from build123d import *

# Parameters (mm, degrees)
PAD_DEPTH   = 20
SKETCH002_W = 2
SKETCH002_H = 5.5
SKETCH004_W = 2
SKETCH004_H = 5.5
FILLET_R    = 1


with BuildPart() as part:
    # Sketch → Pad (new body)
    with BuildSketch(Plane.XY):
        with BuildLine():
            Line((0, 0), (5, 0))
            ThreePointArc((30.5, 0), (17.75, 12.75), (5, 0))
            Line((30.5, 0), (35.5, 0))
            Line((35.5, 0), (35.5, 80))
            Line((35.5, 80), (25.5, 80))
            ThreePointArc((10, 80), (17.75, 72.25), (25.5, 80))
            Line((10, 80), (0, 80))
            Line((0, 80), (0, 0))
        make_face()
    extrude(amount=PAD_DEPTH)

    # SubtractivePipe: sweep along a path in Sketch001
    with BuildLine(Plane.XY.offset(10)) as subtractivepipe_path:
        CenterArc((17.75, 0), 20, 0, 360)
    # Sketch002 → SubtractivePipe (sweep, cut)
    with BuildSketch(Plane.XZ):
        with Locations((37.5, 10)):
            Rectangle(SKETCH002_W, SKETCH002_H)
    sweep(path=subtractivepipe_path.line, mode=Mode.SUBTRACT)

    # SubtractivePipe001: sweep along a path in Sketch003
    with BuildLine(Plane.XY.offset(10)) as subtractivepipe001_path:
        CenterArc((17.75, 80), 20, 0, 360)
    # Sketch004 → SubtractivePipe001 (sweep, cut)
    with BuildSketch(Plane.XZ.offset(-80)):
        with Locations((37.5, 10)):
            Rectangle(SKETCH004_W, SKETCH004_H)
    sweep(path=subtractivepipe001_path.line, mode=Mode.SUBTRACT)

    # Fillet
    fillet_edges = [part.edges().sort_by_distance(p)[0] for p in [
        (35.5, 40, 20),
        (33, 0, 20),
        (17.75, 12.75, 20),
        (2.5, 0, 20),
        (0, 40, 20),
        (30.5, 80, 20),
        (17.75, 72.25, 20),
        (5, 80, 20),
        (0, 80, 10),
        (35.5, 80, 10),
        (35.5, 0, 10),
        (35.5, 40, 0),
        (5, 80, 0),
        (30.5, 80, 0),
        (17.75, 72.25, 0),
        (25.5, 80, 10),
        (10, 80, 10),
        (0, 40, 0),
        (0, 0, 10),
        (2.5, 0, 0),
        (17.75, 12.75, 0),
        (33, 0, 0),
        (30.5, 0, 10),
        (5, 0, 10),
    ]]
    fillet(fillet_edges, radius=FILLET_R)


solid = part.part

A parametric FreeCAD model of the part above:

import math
import FreeCAD as App
import Part
import Sketcher

V = App.Vector
Q = App.Units.Quantity


def edges_at(feature, points):
    """Names of the edges that pass closest to the given points."""
    edges = feature.Shape.Edges
    near = lambda p: min(range(len(edges)), key=lambda i: edges[i].distToShape(Part.Vertex(*p))[0])
    return sorted({f"Edge{near(p) + 1}" for p in points})

doc = App.newDocument("Part")
body = doc.addObject("PartDesign::Body", "Body")

# Sketch on XY plane
sketch1 = body.newObject("Sketcher::SketchObject", "Sketch")
sketch1.AttachmentSupport = (doc.getObject("XY_Plane"), [""])
sketch1.MapMode = "FlatFace"
sketch1.addGeometry([
    Part.LineSegment(V(0, 0, 0), V(5, 0, 0)),  # 0
    Part.ArcOfCircle(Part.Circle(V(17.75, 0, 0), V(0, 0, 1), 12.75), math.radians(0), math.radians(180)),  # 1
    Part.LineSegment(V(30.5, 0, 0), V(35.5, 0, 0)),  # 2
    Part.LineSegment(V(35.5, 0, 0), V(35.5, 80, 0)),  # 3
    Part.LineSegment(V(35.5, 80, 0), V(25.5, 80, 0)),  # 4
    Part.ArcOfCircle(Part.Circle(V(17.75, 80, 0), V(0, 0, 1), 7.75), math.radians(180), math.radians(360)),  # 5
    Part.LineSegment(V(10, 80, 0), V(0, 80, 0)),  # 6
    Part.LineSegment(V(0, 80, 0), V(0, 0, 0)),  # 7
], False)
sketch1.addConstraint([
    Sketcher.Constraint("Coincident", 0, 2, 1, 2),
    Sketcher.Constraint("Coincident", 1, 1, 2, 1),
    Sketcher.Constraint("Coincident", 2, 2, 3, 1),
    Sketcher.Constraint("Coincident", 3, 2, 4, 1),
    Sketcher.Constraint("Coincident", 4, 2, 5, 2),
    Sketcher.Constraint("Coincident", 5, 1, 6, 1),
    Sketcher.Constraint("Coincident", 6, 2, 7, 1),
    Sketcher.Constraint("Coincident", 7, 2, 0, 1),
    Sketcher.Constraint("Horizontal", 0),
    Sketcher.Constraint("Horizontal", 2),
    Sketcher.Constraint("Vertical", 3),
    Sketcher.Constraint("Horizontal", 4),
    Sketcher.Constraint("Horizontal", 6),
    Sketcher.Constraint("Vertical", 7),
    Sketcher.Constraint("Coincident", 7, 2, -1, 1),
    Sketcher.Constraint("PointOnObject", 1, 3, -1),
    Sketcher.Constraint("PointOnObject", 1, 1, -1),
    Sketcher.Constraint("Horizontal", 5, 3, 3, 2),
    Sketcher.Constraint("Horizontal", 4, 2, 5, 1),
    Sketcher.Constraint("Vertical", 1, 3, 5, 3),
    Sketcher.Constraint("Equal", 0, 2),
    Sketcher.Constraint("DistanceX", 0, 1, 0, 2, Q("5 mm")),
    Sketcher.Constraint("DistanceX", 4, 2, 4, 1, Q("10 mm")),
    Sketcher.Constraint("DistanceY", 3, 1, 3, 2, Q("80 mm")),
    Sketcher.Constraint("Radius", 1, Q("12.75 mm")),
])
pad1 = body.newObject("PartDesign::Pad", "Pad")
pad1.Profile = sketch1
pad1.Length = 20

# Sketch on XZ plane
sketch2 = body.newObject("Sketcher::SketchObject", "Sketch001")
sketch2.AttachmentSupport = (doc.getObject("XZ_Plane"), [""])
sketch2.MapMode = "FlatFace"
sketch2.addGeometry([
    Part.LineSegment(V(36.5, 12.75, 0), V(36.5, 7.25, 0)),
    Part.LineSegment(V(36.5, 7.25, 0), V(38.5, 7.25, 0)),
    Part.LineSegment(V(38.5, 7.25, 0), V(38.5, 12.75, 0)),
    Part.LineSegment(V(38.5, 12.75, 0), V(36.5, 12.75, 0)),
], False)
sketch2.addConstraint([
    Sketcher.Constraint("Coincident", 0, 2, 1, 1),
    Sketcher.Constraint("Coincident", 1, 2, 2, 1),
    Sketcher.Constraint("Coincident", 2, 2, 3, 1),
    Sketcher.Constraint("Coincident", 3, 2, 0, 1),
    Sketcher.Constraint("Vertical", 0),
    Sketcher.Constraint("Horizontal", 1),
    Sketcher.Constraint("Vertical", 2),
    Sketcher.Constraint("Horizontal", 3),
    Sketcher.Constraint("DistanceX", 1, 1, 1, 2, Q("2 mm")),
    Sketcher.Constraint("DistanceY", 0, 2, 0, 1, Q("5.5 mm")),
    Sketcher.Constraint("DistanceX", -1, 1, 0, 2, Q("36.5 mm")),
    Sketcher.Constraint("DistanceY", -1, 1, 0, 2, Q("7.25 mm")),
])

# Sketch on XY plane
sketch3 = body.newObject("Sketcher::SketchObject", "Sketch002")
sketch3.AttachmentSupport = (doc.getObject("XY_Plane"), [""])
sketch3.MapMode = "FlatFace"
sketch3.AttachmentOffset = App.Placement(V(0, 0, 10), App.Rotation())
sketch3.addGeometry(Part.Circle(V(17.75, 0, 0), V(0, 0, 1), 20), False)
sketch3.addConstraint([
    Sketcher.Constraint("PointOnObject", 0, 3, -1),
    Sketcher.Constraint("Diameter", 0, Q("40 mm")),
    Sketcher.Constraint("DistanceX", -1, 1, 0, 3, Q("17.75 mm")),
])
doc.recompute()

subtractivepipe = body.newObject("PartDesign::SubtractivePipe", "SubtractivePipe")
subtractivepipe.Profile = sketch2
subtractivepipe.Spine = (sketch3, ["Edge1"])

# Sketch on XZ plane
sketch4 = body.newObject("Sketcher::SketchObject", "Sketch003")
sketch4.AttachmentSupport = (doc.getObject("XZ_Plane"), [""])
sketch4.MapMode = "FlatFace"
sketch4.AttachmentOffset = App.Placement(V(0, 0, -80), App.Rotation())
sketch4.addGeometry([
    Part.LineSegment(V(36.5, 12.75, 0), V(36.5, 7.25, 0)),
    Part.LineSegment(V(36.5, 7.25, 0), V(38.5, 7.25, 0)),
    Part.LineSegment(V(38.5, 7.25, 0), V(38.5, 12.75, 0)),
    Part.LineSegment(V(38.5, 12.75, 0), V(36.5, 12.75, 0)),
], False)
sketch4.addConstraint([
    Sketcher.Constraint("Coincident", 0, 2, 1, 1),
    Sketcher.Constraint("Coincident", 1, 2, 2, 1),
    Sketcher.Constraint("Coincident", 2, 2, 3, 1),
    Sketcher.Constraint("Coincident", 3, 2, 0, 1),
    Sketcher.Constraint("Vertical", 0),
    Sketcher.Constraint("Horizontal", 1),
    Sketcher.Constraint("Vertical", 2),
    Sketcher.Constraint("Horizontal", 3),
    Sketcher.Constraint("DistanceX", 1, 1, 1, 2, Q("2 mm")),
    Sketcher.Constraint("DistanceY", 0, 2, 0, 1, Q("5.5 mm")),
    Sketcher.Constraint("DistanceX", -1, 1, 0, 2, Q("36.5 mm")),
    Sketcher.Constraint("DistanceY", -1, 1, 0, 2, Q("7.25 mm")),
])

# Sketch on XY plane
sketch5 = body.newObject("Sketcher::SketchObject", "Sketch004")
sketch5.AttachmentSupport = (doc.getObject("XY_Plane"), [""])
sketch5.MapMode = "FlatFace"
sketch5.AttachmentOffset = App.Placement(V(0, 0, 10), App.Rotation())
sketch5.addGeometry(Part.Circle(V(17.75, 80, 0), V(0, 0, 1), 20), False)
sketch5.addConstraint([
    Sketcher.Constraint("Diameter", 0, Q("40 mm")),
    Sketcher.Constraint("DistanceY", -1, 1, 0, 3, Q("80 mm")),
    Sketcher.Constraint("DistanceX", -1, 1, 0, 3, Q("17.75 mm")),
])
doc.recompute()

subtractivepipe2 = body.newObject("PartDesign::SubtractivePipe", "SubtractivePipe001")
subtractivepipe2.Profile = sketch4
subtractivepipe2.Spine = (sketch5, ["Edge1"])
doc.recompute()

fillet = body.newObject("PartDesign::Fillet", "Fillet")
fillet.Base = (subtractivepipe2, edges_at(subtractivepipe2, [
    (35.5, 40, 20),
    (33, 0, 20),
    (17.75, 12.75, 20),
    (2.5, 0, 20),
    (0, 40, 20),
    (30.5, 80, 20),
    (17.75, 72.25, 20),
    (5, 80, 20),
    (0, 80, 10),
    (35.5, 80, 10),
    (35.5, 0, 10),
    (35.5, 40, 0),
    (5, 80, 0),
    (30.5, 80, 0),
    (17.75, 72.25, 0),
    (25.5, 80, 10),
    (10, 80, 10),
    (0, 40, 0),
    (0, 0, 10),
    (2.5, 0, 0),
    (17.75, 12.75, 0),
    (33, 0, 0),
    (30.5, 0, 10),
    (5, 0, 10),
]))
fillet.Radius = 1

doc.recompute()
